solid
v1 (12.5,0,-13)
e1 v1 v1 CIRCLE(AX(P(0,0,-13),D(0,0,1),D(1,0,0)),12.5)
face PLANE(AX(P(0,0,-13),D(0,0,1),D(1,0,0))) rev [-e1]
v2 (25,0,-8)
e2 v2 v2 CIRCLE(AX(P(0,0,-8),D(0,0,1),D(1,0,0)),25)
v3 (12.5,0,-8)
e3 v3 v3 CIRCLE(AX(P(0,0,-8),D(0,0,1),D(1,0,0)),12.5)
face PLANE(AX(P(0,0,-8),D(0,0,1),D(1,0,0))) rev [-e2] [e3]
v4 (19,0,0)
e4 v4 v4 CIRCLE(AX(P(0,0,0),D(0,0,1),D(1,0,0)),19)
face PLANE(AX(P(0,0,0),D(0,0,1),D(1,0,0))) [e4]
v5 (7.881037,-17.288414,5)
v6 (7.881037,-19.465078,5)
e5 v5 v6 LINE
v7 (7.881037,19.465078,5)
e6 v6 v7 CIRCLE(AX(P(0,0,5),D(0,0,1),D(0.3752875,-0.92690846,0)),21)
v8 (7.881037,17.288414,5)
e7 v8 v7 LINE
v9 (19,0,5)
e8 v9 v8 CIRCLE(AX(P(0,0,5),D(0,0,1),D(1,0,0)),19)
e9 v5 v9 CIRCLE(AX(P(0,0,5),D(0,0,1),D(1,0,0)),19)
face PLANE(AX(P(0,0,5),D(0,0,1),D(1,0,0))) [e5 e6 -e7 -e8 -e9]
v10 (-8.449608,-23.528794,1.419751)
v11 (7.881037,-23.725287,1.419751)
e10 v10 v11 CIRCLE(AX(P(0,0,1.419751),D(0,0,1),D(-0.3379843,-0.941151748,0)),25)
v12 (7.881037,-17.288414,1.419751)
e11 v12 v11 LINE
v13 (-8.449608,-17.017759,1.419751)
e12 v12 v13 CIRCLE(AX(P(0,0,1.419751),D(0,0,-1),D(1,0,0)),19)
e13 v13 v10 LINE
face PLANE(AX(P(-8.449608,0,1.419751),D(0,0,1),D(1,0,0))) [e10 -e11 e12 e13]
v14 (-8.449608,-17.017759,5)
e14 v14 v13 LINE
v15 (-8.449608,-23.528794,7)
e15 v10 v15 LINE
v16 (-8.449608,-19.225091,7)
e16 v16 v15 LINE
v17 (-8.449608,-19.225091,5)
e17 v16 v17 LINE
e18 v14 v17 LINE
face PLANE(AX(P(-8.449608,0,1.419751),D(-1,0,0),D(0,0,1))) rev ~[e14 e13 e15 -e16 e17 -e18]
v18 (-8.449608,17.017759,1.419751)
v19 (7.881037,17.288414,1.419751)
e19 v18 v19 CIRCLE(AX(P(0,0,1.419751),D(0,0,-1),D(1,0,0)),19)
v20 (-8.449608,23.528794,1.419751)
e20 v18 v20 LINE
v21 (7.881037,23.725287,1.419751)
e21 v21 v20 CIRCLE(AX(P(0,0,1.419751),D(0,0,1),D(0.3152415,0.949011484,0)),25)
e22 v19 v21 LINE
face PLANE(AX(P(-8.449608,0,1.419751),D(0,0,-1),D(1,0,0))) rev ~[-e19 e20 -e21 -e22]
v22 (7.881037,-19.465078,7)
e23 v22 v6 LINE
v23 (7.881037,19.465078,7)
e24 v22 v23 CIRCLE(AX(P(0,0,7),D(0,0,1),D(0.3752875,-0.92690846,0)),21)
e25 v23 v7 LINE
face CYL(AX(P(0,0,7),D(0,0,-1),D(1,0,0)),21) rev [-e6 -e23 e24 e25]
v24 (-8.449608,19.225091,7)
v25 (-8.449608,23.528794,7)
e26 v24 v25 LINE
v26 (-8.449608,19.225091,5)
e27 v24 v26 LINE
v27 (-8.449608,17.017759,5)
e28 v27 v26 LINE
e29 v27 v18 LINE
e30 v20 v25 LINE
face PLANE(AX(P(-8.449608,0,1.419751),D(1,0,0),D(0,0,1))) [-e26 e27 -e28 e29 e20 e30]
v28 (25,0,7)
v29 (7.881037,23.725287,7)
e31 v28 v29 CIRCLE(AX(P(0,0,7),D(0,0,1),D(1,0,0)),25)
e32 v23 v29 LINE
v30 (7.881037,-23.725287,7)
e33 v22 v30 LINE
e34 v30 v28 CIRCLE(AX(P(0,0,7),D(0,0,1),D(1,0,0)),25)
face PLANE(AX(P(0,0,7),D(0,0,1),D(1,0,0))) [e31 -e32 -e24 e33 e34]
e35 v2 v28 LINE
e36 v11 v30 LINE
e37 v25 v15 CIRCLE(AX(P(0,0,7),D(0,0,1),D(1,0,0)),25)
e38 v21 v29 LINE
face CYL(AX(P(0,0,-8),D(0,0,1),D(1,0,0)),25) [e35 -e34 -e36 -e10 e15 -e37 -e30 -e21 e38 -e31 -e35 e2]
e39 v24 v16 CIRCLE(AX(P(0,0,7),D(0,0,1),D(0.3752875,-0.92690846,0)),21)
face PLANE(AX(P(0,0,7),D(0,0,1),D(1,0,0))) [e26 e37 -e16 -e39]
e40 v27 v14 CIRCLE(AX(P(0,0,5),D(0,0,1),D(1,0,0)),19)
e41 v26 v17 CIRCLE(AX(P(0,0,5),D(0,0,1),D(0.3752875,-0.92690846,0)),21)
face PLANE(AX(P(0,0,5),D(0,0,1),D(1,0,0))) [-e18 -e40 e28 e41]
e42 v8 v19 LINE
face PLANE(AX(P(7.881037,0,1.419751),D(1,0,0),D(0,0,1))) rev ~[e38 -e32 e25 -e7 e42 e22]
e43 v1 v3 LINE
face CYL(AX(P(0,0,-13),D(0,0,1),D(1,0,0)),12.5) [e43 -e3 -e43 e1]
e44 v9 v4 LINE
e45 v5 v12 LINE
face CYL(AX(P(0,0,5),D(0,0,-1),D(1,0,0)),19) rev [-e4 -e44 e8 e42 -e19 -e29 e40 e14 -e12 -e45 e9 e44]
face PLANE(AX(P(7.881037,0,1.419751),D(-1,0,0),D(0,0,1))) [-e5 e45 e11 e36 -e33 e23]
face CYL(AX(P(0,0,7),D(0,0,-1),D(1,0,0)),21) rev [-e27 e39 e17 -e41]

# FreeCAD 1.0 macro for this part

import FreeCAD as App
import Part
import Sketcher
from FreeCAD import Vector
Q = App.Units.Quantity


def add_polygon(sketch, points):
    """Adds a closed chain of lines whose ends are joined by coincident constraints."""
    first, n = sketch.GeometryCount, len(points)
    for a, b in zip(points, points[1:] + points[:1]):
        sketch.addGeometry(Part.LineSegment(App.Vector(*a, 0), App.Vector(*b, 0)), False)
    for i in range(n):
        sketch.addConstraint(Sketcher.Constraint("Coincident", first + i, 2, first + (i + 1) % n, 1))

doc = App.newDocument("Part")
body = doc.addObject("PartDesign::Body", "Body")

# Sketch on XZ plane
sketch1 = body.newObject("Sketcher::SketchObject", "Sketch")
sketch1.AttachmentSupport = (doc.getObject("XZ_Plane"), [""])
sketch1.MapMode = "FlatFace"
add_polygon(sketch1, [(19, 0), (0, 0), (0, -13), (12.5, -13), (12.5, -8), (25, -8), (25, 7), (21, 7), (21, 5), (19, 5)])  # lines 0-9
sketch1.addConstraint([
    Sketcher.Constraint("Horizontal", 0),
    Sketcher.Constraint("Vertical", 1),
    Sketcher.Constraint("Horizontal", 2),
    Sketcher.Constraint("Vertical", 3),
    Sketcher.Constraint("Horizontal", 4),
    Sketcher.Constraint("Vertical", 5),
    Sketcher.Constraint("Horizontal", 6),
    Sketcher.Constraint("Vertical", 7),
    Sketcher.Constraint("Horizontal", 8),
    Sketcher.Constraint("Vertical", 9),
    Sketcher.Constraint("Coincident", 0, 2, -1, 1),
    Sketcher.Constraint("Equal", 2, 4),
    Sketcher.Constraint("Equal", 8, 7),
    Sketcher.Constraint("Equal", 3, 9),
    Sketcher.Constraint("DistanceX", 0, 2, 0, 1, Q("19 mm")),
    Sketcher.Constraint("DistanceX", 6, 2, 6, 1, Q("4 mm")),
    Sketcher.Constraint("DistanceX", 8, 2, 8, 1, Q("2 mm")),
    Sketcher.Constraint("DistanceY", 1, 2, 1, 1, Q("13 mm")),
    Sketcher.Constraint("DistanceY", 3, 1, 3, 2, Q("5 mm")),
])
revolution = body.newObject("PartDesign::Revolution", "Revolution")
revolution.Profile = sketch1
revolution.ReferenceAxis = (sketch1, ["V_Axis"])
revolution.Angle = 360

# Sketch on XZ plane
sketch2 = body.newObject("Sketcher::SketchObject", "Sketch001")
sketch2.AttachmentSupport = (doc.getObject("XZ_Plane"), [""])
sketch2.MapMode = "FlatFace"
add_polygon(sketch2, [(-8, 8), (-8, 1), (8, 1), (8, 8)])  # lines 0-3
sketch2.addConstraint([
    Sketcher.Constraint("Vertical", 0),
    Sketcher.Constraint("Horizontal", 1),
    Sketcher.Constraint("Vertical", 2),
    Sketcher.Constraint("Horizontal", 3),
    Sketcher.Constraint("DistanceX", 1, 1, 1, 2, Q("16.330645 mm")),
    Sketcher.Constraint("DistanceY", 0, 2, 0, 1, Q("6.940524 mm")),
    Sketcher.Constraint("DistanceY", -1, 1, 0, 2, Q("1.419751 mm")),
    Sketcher.Constraint("DistanceX", 0, 2, -1, 1, Q("8.449608 mm")),
])
pocket1 = body.newObject("PartDesign::Pocket", "Pocket")
pocket1.Profile = sketch2
pocket1.Type = "ThroughAll"
pocket1.Midplane = True

doc.recompute()
